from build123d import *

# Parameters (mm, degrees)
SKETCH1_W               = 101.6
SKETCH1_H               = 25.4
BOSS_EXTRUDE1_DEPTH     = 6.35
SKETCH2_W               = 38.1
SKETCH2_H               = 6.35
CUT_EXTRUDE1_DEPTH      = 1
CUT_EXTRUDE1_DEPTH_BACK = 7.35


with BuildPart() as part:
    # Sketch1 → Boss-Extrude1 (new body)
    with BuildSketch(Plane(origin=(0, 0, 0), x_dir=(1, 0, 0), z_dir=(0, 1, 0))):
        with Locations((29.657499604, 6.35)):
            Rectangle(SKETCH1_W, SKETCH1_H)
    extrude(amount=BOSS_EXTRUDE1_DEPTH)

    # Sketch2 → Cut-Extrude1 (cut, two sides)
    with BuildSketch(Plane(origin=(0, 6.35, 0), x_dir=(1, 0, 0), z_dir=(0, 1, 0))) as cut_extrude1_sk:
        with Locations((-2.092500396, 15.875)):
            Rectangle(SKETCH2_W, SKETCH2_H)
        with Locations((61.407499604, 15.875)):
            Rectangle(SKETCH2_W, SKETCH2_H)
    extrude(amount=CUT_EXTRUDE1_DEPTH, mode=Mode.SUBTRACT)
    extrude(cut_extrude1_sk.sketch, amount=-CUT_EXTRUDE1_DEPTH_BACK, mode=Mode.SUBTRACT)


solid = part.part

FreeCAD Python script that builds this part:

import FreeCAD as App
import Part
import Sketcher
Q = App.Units.Quantity


def add_polygon(sketch, points):
    """Adds a closed chain of lines whose ends are joined by coincident constraints."""
    first, n = sketch.GeometryCount, len(points)
    for a, b in zip(points, points[1:] + points[:1]):
        sketch.addGeometry(Part.LineSegment(App.Vector(*a, 0), App.Vector(*b, 0)), False)
    for i in range(n):
        sketch.addConstraint(Sketcher.Constraint("Coincident", first + i, 2, first + (i + 1) % n, 1))

doc = App.newDocument("Part")
params = doc.addObject("Spreadsheet::Sheet", "Params")
for row, (alias, value) in enumerate([
    ("sketch1_width", "4 in"),
    ("sketch1_height", "1 in"),
    ("pad1_length", "0.25 in"),
    ("sketch2_width", "1.5 in"),
    ("sketch2_height", "0.25 in"),
], start=1):
    params.set(f"A{row}", alias)
    params.set(f"B{row}", "=" + value)
    params.setAlias(f"B{row}", alias)

body = doc.addObject("PartDesign::Body", "Body")

# Sketch on XZ plane
sketch1 = body.newObject("Sketcher::SketchObject", "Sketch")
sketch1.AttachmentSupport = (doc.getObject("XZ_Plane"), [""])
sketch1.MapMode = "FlatFace"
add_polygon(sketch1, [(-21.1425, -19.05), (-21.1425, 6.35), (80.4575, 6.35), (80.4575, -19.05)])  # lines 0-3
sketch1.addConstraint(Sketcher.Constraint("Vertical", 0))
sketch1.addConstraint(Sketcher.Constraint("Horizontal", 1))
sketch1.addConstraint(Sketcher.Constraint("Vertical", 2))
sketch1.addConstraint(Sketcher.Constraint("Horizontal", 3))
sketch1.addConstraint(Sketcher.Constraint("DistanceX", 1, 1, 1, 2, Q("4 in")))
sketch1.addConstraint(Sketcher.Constraint("DistanceY", 0, 1, 0, 2, Q("1 in")))
sketch1.addConstraint(Sketcher.Constraint("DistanceY", -1, 1, 0, 2, Q("0.25 in")))
sketch1.addConstraint(Sketcher.Constraint("DistanceX", 0, 2, -1, 1, 21.1425))
sketch1.setExpression("Constraints[8]", "Params.sketch1_width")
sketch1.setExpression("Constraints[9]", "Params.sketch1_height")
pad1 = body.newObject("PartDesign::Pad", "Pad")
pad1.Profile = sketch1
pad1.setExpression("Length", "Params.pad1_length")
pad1.Reversed = True

# Sketch on XZ plane
sketch2 = body.newObject("Sketcher::SketchObject", "Sketch001")
sketch2.AttachmentSupport = (doc.getObject("XZ_Plane"), [""])
sketch2.MapMode = "FlatFace"
sketch2.AttachmentOffset = App.Placement(App.Vector(0, 0, -0.25 * 25.4), App.Rotation())
add_polygon(sketch2, [(-21.1425, -19.05), (-21.1425, -12.7), (16.9575, -12.7), (16.9575, -19.05)])  # lines 0-3
add_polygon(sketch2, [(42.3575, -19.05), (42.3575, -12.7), (80.4575, -12.7), (80.4575, -19.05)])  # lines 4-7
sketch2.addConstraint(Sketcher.Constraint("Vertical", 0))
sketch2.addConstraint(Sketcher.Constraint("Horizontal", 1))
sketch2.addConstraint(Sketcher.Constraint("Vertical", 2))
sketch2.addConstraint(Sketcher.Constraint("Horizontal", 3))
sketch2.addConstraint(Sketcher.Constraint("Vertical", 4))
sketch2.addConstraint(Sketcher.Constraint("Horizontal", 5))
sketch2.addConstraint(Sketcher.Constraint("Vertical", 6))
sketch2.addConstraint(Sketcher.Constraint("Horizontal", 7))
sketch2.addConstraint(Sketcher.Constraint("Horizontal", 1, 2, 4, 2))
sketch2.addConstraint(Sketcher.Constraint("Horizontal", 3, 2, 6, 2))
sketch2.addConstraint(Sketcher.Constraint("Equal", 3, 5))
sketch2.addConstraint(Sketcher.Constraint("DistanceX", 1, 1, 1, 2, Q("1.5 in")))
sketch2.addConstraint(Sketcher.Constraint("DistanceX", 1, 2, 4, 2, Q("1 in")))
sketch2.addConstraint(Sketcher.Constraint("DistanceY", 0, 1, 0, 2, Q("0.25 in")))
sketch2.addConstraint(Sketcher.Constraint("DistanceY", 0, 2, -1, 1, Q("0.5 in")))
sketch2.addConstraint(Sketcher.Constraint("DistanceX", 0, 2, -1, 1, 21.1425))
sketch2.setExpression("Constraints[19]", "Params.sketch2_width")
sketch2.setExpression("Constraints[21]", "Params.sketch2_height")
pocket1 = body.newObject("PartDesign::Pocket", "Pocket")
pocket1.Profile = sketch2
pocket1.Type = "ThroughAll"
pocket1.Midplane = True

doc.recompute()
